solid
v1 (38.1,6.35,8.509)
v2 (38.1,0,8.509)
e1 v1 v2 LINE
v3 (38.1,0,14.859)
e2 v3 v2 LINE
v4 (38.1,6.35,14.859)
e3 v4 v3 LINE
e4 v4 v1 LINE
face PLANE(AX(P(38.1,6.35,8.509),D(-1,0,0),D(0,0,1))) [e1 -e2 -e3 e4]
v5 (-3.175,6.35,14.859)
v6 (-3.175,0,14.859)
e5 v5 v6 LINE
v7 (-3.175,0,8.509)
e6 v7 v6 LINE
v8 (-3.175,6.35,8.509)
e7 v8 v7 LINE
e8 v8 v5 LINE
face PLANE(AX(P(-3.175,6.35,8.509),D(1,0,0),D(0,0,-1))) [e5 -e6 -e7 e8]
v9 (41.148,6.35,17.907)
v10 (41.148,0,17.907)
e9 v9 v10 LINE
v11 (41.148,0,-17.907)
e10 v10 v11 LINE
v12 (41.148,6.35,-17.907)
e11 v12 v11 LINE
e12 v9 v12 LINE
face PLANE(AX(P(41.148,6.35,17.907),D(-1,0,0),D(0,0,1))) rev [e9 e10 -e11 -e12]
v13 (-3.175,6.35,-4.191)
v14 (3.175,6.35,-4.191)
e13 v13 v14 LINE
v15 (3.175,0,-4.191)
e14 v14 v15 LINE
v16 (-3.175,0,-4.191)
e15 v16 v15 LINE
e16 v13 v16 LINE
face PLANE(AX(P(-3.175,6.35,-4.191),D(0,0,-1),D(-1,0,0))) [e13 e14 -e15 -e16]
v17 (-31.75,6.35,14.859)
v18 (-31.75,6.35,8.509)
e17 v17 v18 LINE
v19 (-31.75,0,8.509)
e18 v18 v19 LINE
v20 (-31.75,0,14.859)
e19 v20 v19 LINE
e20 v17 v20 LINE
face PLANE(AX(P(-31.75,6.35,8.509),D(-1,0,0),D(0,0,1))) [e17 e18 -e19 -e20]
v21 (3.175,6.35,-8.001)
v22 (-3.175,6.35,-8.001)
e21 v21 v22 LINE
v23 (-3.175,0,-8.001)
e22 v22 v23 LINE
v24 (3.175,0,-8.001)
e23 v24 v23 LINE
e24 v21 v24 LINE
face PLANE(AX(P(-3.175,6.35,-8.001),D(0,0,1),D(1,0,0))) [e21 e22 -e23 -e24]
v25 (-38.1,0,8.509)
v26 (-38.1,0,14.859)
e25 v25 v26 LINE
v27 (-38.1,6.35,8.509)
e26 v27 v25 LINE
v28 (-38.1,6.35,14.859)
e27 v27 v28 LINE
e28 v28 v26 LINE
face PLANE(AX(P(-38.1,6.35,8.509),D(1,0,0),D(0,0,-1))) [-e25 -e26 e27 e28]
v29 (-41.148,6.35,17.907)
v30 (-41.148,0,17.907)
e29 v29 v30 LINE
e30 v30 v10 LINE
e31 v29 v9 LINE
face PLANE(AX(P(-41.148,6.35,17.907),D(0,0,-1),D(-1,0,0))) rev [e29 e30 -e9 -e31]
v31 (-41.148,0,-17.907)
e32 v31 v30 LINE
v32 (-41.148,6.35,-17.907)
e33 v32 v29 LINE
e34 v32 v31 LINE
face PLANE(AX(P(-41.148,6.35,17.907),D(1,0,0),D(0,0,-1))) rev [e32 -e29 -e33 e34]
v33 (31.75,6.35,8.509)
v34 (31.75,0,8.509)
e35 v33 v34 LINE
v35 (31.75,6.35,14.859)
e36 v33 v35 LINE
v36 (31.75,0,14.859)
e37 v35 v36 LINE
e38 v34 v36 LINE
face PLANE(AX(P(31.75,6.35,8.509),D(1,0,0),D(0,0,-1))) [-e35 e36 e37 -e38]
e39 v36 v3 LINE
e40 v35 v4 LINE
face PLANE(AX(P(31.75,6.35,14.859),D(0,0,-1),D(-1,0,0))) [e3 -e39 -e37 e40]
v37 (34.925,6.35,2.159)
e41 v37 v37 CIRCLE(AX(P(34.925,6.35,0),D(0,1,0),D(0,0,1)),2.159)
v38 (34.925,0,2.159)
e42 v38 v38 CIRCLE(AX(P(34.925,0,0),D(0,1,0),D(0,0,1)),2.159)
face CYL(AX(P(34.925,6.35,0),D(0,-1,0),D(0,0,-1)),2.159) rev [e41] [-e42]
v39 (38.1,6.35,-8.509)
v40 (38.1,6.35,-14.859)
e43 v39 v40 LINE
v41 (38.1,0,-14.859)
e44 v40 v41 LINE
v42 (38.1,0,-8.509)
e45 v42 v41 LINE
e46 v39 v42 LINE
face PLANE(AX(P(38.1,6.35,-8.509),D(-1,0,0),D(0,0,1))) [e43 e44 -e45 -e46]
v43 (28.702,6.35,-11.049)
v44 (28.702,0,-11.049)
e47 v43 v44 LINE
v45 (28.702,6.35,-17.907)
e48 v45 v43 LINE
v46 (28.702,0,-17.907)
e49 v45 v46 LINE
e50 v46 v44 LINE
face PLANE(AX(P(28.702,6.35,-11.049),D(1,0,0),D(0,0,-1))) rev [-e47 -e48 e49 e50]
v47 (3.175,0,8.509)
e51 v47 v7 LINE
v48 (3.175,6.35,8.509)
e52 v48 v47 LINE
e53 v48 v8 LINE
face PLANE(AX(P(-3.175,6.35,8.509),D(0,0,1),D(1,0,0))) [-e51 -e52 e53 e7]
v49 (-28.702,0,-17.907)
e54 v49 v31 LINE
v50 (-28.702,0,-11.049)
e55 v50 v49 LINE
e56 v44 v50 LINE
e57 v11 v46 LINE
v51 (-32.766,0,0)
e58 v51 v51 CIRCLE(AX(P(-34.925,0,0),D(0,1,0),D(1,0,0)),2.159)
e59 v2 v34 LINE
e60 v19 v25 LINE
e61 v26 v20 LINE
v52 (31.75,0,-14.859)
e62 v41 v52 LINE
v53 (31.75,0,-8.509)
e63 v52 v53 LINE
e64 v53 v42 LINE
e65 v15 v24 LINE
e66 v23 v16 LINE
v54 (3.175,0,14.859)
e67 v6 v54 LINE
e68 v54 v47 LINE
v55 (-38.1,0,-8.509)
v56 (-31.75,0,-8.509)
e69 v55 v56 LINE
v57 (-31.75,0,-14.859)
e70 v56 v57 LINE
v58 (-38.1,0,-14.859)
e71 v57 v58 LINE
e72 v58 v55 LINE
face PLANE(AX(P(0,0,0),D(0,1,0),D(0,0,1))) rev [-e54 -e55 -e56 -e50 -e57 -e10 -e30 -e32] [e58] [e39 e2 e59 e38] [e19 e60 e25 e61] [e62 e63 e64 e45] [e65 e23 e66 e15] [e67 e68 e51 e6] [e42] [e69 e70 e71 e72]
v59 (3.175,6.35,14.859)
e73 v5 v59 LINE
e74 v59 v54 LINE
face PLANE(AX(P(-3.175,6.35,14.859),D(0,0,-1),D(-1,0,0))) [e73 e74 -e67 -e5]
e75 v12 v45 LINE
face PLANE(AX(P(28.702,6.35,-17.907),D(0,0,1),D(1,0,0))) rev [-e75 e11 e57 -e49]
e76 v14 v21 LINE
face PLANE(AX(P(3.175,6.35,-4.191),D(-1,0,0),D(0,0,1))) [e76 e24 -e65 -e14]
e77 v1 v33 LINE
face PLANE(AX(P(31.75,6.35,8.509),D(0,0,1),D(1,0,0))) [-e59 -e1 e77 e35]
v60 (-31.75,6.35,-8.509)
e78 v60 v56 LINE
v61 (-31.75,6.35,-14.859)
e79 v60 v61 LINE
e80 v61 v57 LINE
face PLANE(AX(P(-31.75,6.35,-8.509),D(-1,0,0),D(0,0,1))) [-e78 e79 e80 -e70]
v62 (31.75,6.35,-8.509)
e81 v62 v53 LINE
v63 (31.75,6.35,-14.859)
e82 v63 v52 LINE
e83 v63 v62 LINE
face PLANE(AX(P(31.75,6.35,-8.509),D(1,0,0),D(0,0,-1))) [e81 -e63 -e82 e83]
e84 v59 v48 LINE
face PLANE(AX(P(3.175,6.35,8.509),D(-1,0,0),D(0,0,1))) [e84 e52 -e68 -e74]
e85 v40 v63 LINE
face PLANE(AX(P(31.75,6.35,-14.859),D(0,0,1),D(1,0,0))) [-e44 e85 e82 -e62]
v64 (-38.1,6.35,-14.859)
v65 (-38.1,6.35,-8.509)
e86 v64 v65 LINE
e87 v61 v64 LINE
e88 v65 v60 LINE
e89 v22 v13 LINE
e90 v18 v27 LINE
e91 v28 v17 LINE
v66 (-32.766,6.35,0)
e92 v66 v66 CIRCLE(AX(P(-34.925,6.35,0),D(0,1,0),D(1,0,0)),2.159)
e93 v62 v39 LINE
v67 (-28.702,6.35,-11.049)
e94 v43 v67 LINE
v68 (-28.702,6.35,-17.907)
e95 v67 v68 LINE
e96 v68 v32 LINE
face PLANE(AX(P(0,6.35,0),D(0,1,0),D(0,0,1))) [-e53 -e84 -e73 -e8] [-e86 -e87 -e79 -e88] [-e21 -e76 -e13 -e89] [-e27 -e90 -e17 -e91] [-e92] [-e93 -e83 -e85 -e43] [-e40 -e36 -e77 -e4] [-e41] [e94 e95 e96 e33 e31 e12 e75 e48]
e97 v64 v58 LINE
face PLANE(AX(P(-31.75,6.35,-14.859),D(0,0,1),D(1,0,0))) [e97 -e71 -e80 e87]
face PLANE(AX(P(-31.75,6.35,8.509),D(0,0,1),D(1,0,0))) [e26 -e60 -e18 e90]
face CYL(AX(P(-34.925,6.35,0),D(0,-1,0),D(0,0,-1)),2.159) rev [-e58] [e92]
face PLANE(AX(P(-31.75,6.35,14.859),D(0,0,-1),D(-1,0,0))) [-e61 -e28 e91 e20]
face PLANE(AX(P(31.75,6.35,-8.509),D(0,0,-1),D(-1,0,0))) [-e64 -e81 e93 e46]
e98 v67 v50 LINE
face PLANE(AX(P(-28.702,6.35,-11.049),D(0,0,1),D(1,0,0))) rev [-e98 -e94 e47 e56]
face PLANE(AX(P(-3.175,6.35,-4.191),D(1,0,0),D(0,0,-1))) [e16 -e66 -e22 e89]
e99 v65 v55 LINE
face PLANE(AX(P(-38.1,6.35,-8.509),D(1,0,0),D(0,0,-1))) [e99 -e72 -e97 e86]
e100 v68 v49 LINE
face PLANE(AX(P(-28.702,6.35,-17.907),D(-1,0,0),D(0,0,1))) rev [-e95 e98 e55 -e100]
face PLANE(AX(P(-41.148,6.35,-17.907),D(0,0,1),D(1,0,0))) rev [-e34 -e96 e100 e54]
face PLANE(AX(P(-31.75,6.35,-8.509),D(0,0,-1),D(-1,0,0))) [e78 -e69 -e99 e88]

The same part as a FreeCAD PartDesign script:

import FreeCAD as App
import Part
import Sketcher
Q = App.Units.Quantity

doc = App.newDocument("Part")
body = doc.addObject("PartDesign::Body", "Body")

sketch1 = body.newObject("Sketcher::SketchObject", "Sketch")
sketch1.AttachmentSupport = (doc.getObject("XZ_Plane"), [""])
sketch1.MapMode = "FlatFace"
sketch1.addGeometry([
    Part.LineSegment(App.Vector(-41.1, 17.9, 0), App.Vector(41.1, 17.9, 0)),
    Part.LineSegment(App.Vector(41.1, 17.9, 0), App.Vector(41.1, -17.9, 0)),
    Part.LineSegment(App.Vector(41.1, -17.9, 0), App.Vector(28.7, -17.9, 0)),
    Part.LineSegment(App.Vector(28.7, -17.9, 0), App.Vector(28.7, -11, 0)),
    Part.LineSegment(App.Vector(28.7, -11, 0), App.Vector(-28.7, -11, 0)),
    Part.LineSegment(App.Vector(-28.7, -11, 0), App.Vector(-28.7, -17.9, 0)),
    Part.LineSegment(App.Vector(-28.7, -17.9, 0), App.Vector(-41.1, -17.9, 0)),
    Part.LineSegment(App.Vector(-41.1, -17.9, 0), App.Vector(-41.1, 17.9, 0)),
    Part.LineSegment(App.Vector(-31.8, 14.9, 0), App.Vector(-38.1, 14.9, 0)),
    Part.LineSegment(App.Vector(-38.1, 14.9, 0), App.Vector(-38.1, 8.5, 0)),
    Part.LineSegment(App.Vector(-38.1, 8.5, 0), App.Vector(-31.8, 8.5, 0)),
    Part.LineSegment(App.Vector(-31.8, 8.5, 0), App.Vector(-31.8, 14.9, 0)),
    Part.LineSegment(App.Vector(3.2, 14.9, 0), App.Vector(-3.2, 14.9, 0)),
    Part.LineSegment(App.Vector(-3.2, 14.9, 0), App.Vector(-3.2, 8.5, 0)),
    Part.LineSegment(App.Vector(-3.2, 8.5, 0), App.Vector(3.2, 8.5, 0)),
    Part.LineSegment(App.Vector(3.2, 8.5, 0), App.Vector(3.2, 14.9, 0)),
    Part.LineSegment(App.Vector(38.1, 14.9, 0), App.Vector(31.8, 14.9, 0)),
    Part.LineSegment(App.Vector(31.8, 14.9, 0), App.Vector(31.8, 8.5, 0)),
    Part.LineSegment(App.Vector(31.8, 8.5, 0), App.Vector(38.1, 8.5, 0)),
    Part.LineSegment(App.Vector(38.1, 8.5, 0), App.Vector(38.1, 14.9, 0)),
    Part.Circle(App.Vector(-34.9, 0, 0), App.Vector(0, 0, 1), 2.2),
    Part.LineSegment(App.Vector(-31.8, -8.5, 0), App.Vector(-38.1, -8.5, 0)),
    Part.LineSegment(App.Vector(-38.1, -8.5, 0), App.Vector(-38.1, -14.9, 0)),
    Part.LineSegment(App.Vector(-38.1, -14.9, 0), App.Vector(-31.8, -14.9, 0)),
    Part.LineSegment(App.Vector(-31.8, -14.9, 0), App.Vector(-31.8, -8.5, 0)),
    Part.LineSegment(App.Vector(3.2, -4.2, 0), App.Vector(-3.2, -4.2, 0)),
    Part.LineSegment(App.Vector(-3.2, -4.2, 0), App.Vector(-3.2, -8, 0)),
    Part.LineSegment(App.Vector(-3.2, -8, 0), App.Vector(3.2, -8, 0)),
    Part.LineSegment(App.Vector(3.2, -8, 0), App.Vector(3.2, -4.2, 0)),
    Part.Circle(App.Vector(34.9, 0, 0), App.Vector(0, 0, 1), 2.2),
    Part.LineSegment(App.Vector(38.1, -8.5, 0), App.Vector(31.8, -8.5, 0)),
    Part.LineSegment(App.Vector(31.8, -8.5, 0), App.Vector(31.8, -14.9, 0)),
    Part.LineSegment(App.Vector(31.8, -14.9, 0), App.Vector(38.1, -14.9, 0)),
    Part.LineSegment(App.Vector(38.1, -14.9, 0), App.Vector(38.1, -8.5, 0)),
], False)
sketch1.addConstraint([
    Sketcher.Constraint("Coincident", 0, 2, 1, 1),
    Sketcher.Constraint("Coincident", 1, 2, 2, 1),
    Sketcher.Constraint("Coincident", 2, 2, 3, 1),
    Sketcher.Constraint("Coincident", 3, 2, 4, 1),
    Sketcher.Constraint("Coincident", 4, 2, 5, 1),
    Sketcher.Constraint("Coincident", 5, 2, 6, 1),
    Sketcher.Constraint("Coincident", 6, 2, 7, 1),
    Sketcher.Constraint("Coincident", 7, 2, 0, 1),
    Sketcher.Constraint("Coincident", 8, 2, 9, 1),
    Sketcher.Constraint("Coincident", 9, 2, 10, 1),
    Sketcher.Constraint("Coincident", 10, 2, 11, 1),
    Sketcher.Constraint("Coincident", 11, 2, 8, 1),
    Sketcher.Constraint("Coincident", 12, 2, 13, 1),
    Sketcher.Constraint("Coincident", 13, 2, 14, 1),
    Sketcher.Constraint("Coincident", 14, 2, 15, 1),
    Sketcher.Constraint("Coincident", 15, 2, 12, 1),
    Sketcher.Constraint("Coincident", 16, 2, 17, 1),
    Sketcher.Constraint("Coincident", 17, 2, 18, 1),
    Sketcher.Constraint("Coincident", 18, 2, 19, 1),
    Sketcher.Constraint("Coincident", 19, 2, 16, 1),
    Sketcher.Constraint("Coincident", 21, 2, 22, 1),
    Sketcher.Constraint("Coincident", 22, 2, 23, 1),
    Sketcher.Constraint("Coincident", 23, 2, 24, 1),
    Sketcher.Constraint("Coincident", 24, 2, 21, 1),
    Sketcher.Constraint("Coincident", 25, 2, 26, 1),
    Sketcher.Constraint("Coincident", 26, 2, 27, 1),
    Sketcher.Constraint("Coincident", 27, 2, 28, 1),
    Sketcher.Constraint("Coincident", 28, 2, 25, 1),
    Sketcher.Constraint("Coincident", 30, 2, 31, 1),
    Sketcher.Constraint("Coincident", 31, 2, 32, 1),
    Sketcher.Constraint("Coincident", 32, 2, 33, 1),
    Sketcher.Constraint("Coincident", 33, 2, 30, 1),
    Sketcher.Constraint("Horizontal", 0),
    Sketcher.Constraint("Vertical", 1),
    Sketcher.Constraint("Horizontal", 2),
    Sketcher.Constraint("Vertical", 3),
    Sketcher.Constraint("Horizontal", 4),
    Sketcher.Constraint("Vertical", 5),
    Sketcher.Constraint("Horizontal", 6),
    Sketcher.Constraint("Vertical", 7),
    Sketcher.Constraint("Horizontal", 8),
    Sketcher.Constraint("Vertical", 9),
    Sketcher.Constraint("Horizontal", 10),
    Sketcher.Constraint("Vertical", 11),
    Sketcher.Constraint("Horizontal", 12),
    Sketcher.Constraint("Vertical", 13),
    Sketcher.Constraint("Horizontal", 14),
    Sketcher.Constraint("Vertical", 15),
    Sketcher.Constraint("Horizontal", 16),
    Sketcher.Constraint("Vertical", 17),
    Sketcher.Constraint("Horizontal", 18),
    Sketcher.Constraint("Vertical", 19),
    Sketcher.Constraint("Horizontal", 21),
    Sketcher.Constraint("Vertical", 22),
    Sketcher.Constraint("Horizontal", 23),
    Sketcher.Constraint("Vertical", 24),
    Sketcher.Constraint("Horizontal", 25),
    Sketcher.Constraint("Vertical", 26),
    Sketcher.Constraint("Horizontal", 27),
    Sketcher.Constraint("Vertical", 28),
    Sketcher.Constraint("Horizontal", 30),
    Sketcher.Constraint("Vertical", 31),
    Sketcher.Constraint("Horizontal", 32),
    Sketcher.Constraint("Vertical", 33),
    Sketcher.Constraint("Equal", 20, 29),
    Sketcher.Constraint("Symmetric", 20, 3, 29, 3, -1, 1),
    Sketcher.Constraint("Symmetric", 0, 2, 6, 2, -1, 1),
    Sketcher.Constraint("Symmetric", 18, 2, 21, 2, -1, 1),
    Sketcher.Constraint("Symmetric", 16, 2, 23, 2, -1, 1),
    Sketcher.Constraint("Symmetric", 10, 2, 30, 2, -1, 1),
    Sketcher.Constraint("Symmetric", 8, 2, 32, 2, -1, 1),
    Sketcher.Constraint("Symmetric", 2, 2, 5, 2, -2),
    Sketcher.Constraint("Symmetric", 11, 2, 16, 2, -2),
    Sketcher.Constraint("Symmetric", 9, 2, 18, 2, -2),
    Sketcher.Constraint("PointOnObject", 20, 3, -1),
    Sketcher.Constraint("Horizontal", 11, 2, 12, 2),
    Sketcher.Constraint("Horizontal", 10, 2, 13, 2),
    Sketcher.Constraint("Vertical", 13, 2, 25, 2),
    Sketcher.Constraint("Vertical", 15, 2, 27, 2),
    Sketcher.Constraint("Equal", 10, 12),
    Sketcher.Constraint("Equal", 32, 9),
    Sketcher.Constraint("Diameter", 20, Q("0.17 in")),
    Sketcher.Constraint("DistanceX", 0, 1, 0, 2, Q("3.24 in")),
    Sketcher.Constraint("DistanceX", 2, 2, 2, 1, Q("0.49 in")),
    Sketcher.Constraint("DistanceX", 8, 2, 8, 1, Q("0.25 in")),
    Sketcher.Constraint("DistanceY", 1, 2, 1, 1, Q("1.41 in")),
    Sketcher.Constraint("DistanceY", 3, 1, 3, 2, Q("0.27 in")),
    Sketcher.Constraint("DistanceY", 26, 2, 26, 1, Q("0.15 in")),
    Sketcher.Constraint("DistanceX", 8, 2, -1, 1, Q("1.5 in")),
    Sketcher.Constraint("DistanceY", 4, 2, 21, 2, Q("0.1 in")),
    Sketcher.Constraint("DistanceY", 25, 2, 13, 2, Q("0.5 in")),
    Sketcher.Constraint("DistanceX", 20, 3, 29, 3, Q("2.75 in")),
    Sketcher.Constraint("DistanceX", 20, 3, 12, 2, Q("1.25 in")),
])
pad1 = body.newObject("PartDesign::Pad", "Pad")
pad1.Profile = sketch1
pad1.Length = Q("0.25 in")
pad1.Reversed = True

doc.recompute()
